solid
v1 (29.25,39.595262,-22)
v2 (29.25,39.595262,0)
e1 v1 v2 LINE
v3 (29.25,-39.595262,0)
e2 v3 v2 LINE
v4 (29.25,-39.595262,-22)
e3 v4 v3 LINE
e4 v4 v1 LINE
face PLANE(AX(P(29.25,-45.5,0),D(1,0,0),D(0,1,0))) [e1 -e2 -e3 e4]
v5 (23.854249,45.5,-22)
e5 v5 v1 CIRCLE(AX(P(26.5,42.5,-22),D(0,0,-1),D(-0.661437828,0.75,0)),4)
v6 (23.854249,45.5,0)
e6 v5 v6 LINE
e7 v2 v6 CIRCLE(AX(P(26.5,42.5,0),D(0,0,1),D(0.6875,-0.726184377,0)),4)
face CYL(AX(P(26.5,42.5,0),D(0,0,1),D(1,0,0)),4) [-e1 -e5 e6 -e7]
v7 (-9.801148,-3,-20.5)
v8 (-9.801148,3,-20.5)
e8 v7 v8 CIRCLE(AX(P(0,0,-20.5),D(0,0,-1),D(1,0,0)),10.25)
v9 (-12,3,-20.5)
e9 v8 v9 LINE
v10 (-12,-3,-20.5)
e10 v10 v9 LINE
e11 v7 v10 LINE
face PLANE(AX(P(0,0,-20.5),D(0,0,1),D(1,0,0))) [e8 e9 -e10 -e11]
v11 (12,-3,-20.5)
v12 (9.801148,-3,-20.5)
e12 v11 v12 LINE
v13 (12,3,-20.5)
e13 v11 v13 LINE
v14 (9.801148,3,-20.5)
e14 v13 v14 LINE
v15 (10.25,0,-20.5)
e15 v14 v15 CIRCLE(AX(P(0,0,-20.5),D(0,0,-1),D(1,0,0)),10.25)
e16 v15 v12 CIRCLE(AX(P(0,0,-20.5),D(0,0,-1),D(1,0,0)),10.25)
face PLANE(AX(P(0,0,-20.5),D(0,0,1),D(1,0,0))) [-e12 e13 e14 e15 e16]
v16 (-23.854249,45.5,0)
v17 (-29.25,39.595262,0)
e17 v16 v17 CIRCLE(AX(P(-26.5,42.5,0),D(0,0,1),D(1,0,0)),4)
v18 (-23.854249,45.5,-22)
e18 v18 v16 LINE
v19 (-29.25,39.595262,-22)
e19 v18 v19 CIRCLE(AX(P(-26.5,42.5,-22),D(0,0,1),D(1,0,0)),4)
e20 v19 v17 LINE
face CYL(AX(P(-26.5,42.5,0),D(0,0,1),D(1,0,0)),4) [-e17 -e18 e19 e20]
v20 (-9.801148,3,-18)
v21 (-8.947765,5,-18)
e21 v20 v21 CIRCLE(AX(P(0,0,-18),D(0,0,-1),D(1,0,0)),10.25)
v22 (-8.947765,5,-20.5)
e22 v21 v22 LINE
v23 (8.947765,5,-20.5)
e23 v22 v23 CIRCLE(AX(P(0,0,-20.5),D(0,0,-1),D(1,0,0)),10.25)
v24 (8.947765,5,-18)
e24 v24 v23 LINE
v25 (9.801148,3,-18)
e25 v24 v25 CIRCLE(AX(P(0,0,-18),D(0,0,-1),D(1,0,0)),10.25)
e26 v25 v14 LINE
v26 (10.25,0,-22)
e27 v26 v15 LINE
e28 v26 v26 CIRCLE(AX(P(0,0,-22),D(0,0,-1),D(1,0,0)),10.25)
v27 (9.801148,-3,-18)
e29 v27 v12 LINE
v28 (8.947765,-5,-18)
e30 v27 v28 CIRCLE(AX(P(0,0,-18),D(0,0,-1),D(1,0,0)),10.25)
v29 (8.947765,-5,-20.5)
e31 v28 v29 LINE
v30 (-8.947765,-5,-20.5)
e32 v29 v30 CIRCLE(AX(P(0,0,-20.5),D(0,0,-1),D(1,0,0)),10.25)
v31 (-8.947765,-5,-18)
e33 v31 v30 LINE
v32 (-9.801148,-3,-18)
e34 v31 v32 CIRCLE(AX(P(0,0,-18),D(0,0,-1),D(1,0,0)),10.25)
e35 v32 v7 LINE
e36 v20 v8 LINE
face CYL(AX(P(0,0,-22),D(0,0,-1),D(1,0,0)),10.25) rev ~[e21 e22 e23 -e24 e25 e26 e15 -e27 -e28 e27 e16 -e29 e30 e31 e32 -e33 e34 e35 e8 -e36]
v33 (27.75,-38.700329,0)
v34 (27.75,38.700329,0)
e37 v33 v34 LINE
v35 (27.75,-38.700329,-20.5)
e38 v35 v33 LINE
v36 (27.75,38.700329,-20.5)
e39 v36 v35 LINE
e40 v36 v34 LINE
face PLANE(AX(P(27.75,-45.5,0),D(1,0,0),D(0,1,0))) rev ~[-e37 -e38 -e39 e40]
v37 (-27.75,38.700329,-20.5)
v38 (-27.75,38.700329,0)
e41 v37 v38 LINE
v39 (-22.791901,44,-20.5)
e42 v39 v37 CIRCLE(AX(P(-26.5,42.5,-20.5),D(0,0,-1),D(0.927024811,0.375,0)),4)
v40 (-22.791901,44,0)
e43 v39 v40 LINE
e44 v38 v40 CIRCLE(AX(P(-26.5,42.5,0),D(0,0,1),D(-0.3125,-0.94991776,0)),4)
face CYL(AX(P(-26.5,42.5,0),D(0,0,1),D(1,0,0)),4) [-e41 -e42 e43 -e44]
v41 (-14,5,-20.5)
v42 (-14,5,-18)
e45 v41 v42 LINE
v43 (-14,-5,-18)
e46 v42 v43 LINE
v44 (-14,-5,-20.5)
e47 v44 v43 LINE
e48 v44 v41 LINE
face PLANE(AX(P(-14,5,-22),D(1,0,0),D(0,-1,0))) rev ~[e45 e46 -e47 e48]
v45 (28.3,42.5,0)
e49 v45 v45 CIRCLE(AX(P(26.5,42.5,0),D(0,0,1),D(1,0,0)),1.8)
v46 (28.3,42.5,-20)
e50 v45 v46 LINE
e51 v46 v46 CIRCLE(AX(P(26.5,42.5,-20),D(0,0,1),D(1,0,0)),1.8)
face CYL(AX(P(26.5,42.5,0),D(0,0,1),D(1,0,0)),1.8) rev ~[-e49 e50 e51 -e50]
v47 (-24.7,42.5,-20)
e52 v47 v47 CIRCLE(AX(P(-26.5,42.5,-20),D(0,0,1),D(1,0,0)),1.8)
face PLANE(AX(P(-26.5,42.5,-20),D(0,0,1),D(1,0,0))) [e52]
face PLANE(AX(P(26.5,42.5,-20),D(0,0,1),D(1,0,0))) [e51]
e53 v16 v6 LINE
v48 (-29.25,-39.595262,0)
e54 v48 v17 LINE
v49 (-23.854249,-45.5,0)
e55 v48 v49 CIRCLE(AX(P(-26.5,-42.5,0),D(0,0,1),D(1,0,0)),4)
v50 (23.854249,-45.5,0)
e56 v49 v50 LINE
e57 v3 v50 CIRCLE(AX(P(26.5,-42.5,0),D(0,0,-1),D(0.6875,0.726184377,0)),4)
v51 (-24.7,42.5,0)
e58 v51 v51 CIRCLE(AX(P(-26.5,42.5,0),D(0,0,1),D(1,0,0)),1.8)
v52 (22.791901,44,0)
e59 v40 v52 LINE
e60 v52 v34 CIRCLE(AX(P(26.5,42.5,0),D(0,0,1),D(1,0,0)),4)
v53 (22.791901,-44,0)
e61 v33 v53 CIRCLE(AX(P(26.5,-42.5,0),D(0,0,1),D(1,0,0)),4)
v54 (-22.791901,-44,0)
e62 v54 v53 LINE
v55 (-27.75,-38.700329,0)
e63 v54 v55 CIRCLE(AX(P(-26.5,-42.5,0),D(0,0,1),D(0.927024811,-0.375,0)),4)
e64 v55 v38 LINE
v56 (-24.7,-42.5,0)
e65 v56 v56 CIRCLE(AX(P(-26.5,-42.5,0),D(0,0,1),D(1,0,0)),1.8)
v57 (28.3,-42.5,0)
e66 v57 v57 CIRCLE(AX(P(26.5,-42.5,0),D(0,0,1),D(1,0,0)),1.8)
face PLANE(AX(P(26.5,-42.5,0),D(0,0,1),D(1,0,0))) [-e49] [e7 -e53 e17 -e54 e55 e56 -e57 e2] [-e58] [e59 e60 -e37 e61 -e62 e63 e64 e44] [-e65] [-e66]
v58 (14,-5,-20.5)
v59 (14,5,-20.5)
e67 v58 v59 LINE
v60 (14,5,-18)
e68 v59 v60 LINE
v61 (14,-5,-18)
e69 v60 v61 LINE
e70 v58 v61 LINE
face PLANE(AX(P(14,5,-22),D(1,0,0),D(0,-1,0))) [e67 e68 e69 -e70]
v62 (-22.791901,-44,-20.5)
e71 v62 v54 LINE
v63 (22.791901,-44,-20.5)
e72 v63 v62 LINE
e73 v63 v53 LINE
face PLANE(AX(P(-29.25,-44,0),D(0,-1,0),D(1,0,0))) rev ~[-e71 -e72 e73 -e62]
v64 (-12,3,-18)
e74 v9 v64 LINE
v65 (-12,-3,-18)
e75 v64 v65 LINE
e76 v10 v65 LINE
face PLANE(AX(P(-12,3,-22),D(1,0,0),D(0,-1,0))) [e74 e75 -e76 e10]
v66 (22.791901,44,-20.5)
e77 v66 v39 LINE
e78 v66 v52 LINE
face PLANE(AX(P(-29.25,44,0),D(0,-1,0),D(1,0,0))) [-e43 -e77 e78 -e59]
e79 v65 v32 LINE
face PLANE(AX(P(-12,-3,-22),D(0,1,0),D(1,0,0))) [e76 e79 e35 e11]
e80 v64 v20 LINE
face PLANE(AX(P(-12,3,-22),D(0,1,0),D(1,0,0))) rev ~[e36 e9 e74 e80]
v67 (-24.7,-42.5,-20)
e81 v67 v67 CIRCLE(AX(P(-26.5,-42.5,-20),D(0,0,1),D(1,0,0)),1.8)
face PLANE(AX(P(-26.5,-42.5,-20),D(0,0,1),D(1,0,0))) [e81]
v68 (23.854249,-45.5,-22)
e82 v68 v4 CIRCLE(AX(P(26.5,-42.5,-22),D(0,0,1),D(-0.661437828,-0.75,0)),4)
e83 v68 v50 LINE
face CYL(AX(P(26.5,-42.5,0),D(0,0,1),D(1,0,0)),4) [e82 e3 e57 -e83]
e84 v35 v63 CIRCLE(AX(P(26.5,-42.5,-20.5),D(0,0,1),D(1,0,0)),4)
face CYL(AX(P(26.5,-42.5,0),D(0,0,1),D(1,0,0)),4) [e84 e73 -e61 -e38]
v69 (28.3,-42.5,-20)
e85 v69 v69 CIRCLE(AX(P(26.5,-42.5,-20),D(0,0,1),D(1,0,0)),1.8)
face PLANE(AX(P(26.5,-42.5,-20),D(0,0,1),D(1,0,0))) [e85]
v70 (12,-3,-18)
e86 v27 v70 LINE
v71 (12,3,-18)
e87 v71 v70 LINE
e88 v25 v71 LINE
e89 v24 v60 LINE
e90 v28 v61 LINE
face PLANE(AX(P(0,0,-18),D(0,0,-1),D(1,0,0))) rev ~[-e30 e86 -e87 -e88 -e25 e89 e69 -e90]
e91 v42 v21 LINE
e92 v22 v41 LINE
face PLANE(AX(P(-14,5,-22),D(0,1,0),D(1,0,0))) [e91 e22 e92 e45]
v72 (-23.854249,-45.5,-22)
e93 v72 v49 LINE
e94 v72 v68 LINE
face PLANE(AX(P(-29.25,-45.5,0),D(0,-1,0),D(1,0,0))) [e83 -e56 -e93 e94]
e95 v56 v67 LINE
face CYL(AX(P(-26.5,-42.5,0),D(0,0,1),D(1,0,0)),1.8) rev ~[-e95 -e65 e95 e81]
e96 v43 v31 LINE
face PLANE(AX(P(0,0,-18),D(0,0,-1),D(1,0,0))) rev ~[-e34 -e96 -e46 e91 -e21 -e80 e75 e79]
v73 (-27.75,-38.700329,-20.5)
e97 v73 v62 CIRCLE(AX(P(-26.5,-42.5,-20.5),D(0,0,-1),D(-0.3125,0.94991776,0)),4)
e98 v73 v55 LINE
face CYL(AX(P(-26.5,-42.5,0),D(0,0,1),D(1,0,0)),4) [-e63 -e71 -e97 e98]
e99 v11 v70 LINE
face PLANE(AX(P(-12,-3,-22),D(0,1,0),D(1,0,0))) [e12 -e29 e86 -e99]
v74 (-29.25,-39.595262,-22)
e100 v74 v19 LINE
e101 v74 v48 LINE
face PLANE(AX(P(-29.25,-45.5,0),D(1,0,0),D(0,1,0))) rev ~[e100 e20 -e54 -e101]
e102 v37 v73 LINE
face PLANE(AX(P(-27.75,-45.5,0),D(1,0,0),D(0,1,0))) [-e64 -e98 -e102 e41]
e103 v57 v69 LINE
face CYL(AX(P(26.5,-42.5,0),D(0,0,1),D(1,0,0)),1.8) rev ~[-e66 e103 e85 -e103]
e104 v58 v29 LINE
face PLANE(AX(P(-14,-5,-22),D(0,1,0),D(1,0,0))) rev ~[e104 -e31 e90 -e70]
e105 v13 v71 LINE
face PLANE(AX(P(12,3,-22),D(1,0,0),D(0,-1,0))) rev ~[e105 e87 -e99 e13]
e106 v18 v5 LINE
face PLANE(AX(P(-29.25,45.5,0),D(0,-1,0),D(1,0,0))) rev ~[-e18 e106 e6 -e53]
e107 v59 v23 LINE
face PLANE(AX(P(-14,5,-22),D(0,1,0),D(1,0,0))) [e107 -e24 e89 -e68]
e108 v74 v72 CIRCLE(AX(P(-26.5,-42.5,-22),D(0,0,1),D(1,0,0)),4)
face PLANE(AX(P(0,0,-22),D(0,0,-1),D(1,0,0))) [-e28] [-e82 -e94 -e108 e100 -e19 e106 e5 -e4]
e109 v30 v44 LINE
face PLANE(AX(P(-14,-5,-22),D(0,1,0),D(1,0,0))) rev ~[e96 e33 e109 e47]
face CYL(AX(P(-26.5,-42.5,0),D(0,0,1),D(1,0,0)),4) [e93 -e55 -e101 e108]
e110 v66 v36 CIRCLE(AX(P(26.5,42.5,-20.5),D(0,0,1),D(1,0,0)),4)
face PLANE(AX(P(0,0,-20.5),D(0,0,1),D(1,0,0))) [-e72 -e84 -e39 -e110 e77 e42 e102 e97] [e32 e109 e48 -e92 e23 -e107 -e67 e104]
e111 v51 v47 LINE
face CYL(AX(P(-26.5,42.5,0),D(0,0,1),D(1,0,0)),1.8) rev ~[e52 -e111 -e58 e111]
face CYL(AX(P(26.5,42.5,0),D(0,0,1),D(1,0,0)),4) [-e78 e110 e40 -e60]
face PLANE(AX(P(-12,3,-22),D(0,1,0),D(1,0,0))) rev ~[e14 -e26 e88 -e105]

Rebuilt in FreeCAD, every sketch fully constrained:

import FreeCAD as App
import Part
import Sketcher

V = App.Vector
Q = App.Units.Quantity


def edges_at(feature, points):
    """Names of the edges that pass closest to the given points."""
    edges = feature.Shape.Edges
    near = lambda p: min(range(len(edges)), key=lambda i: edges[i].distToShape(Part.Vertex(*p))[0])
    return sorted({f"Edge{near(p) + 1}" for p in points})


def faces_at(feature, points):
    """Names of the faces that lie closest to the given points."""
    faces = feature.Shape.Faces
    near = lambda p: min(range(len(faces)), key=lambda i: faces[i].distToShape(Part.Vertex(*p))[0])
    return sorted({f"Face{near(p) + 1}" for p in points})

doc = App.newDocument("Part")
body = doc.addObject("PartDesign::Body", "Body")

# Sketch on XY plane
sketch1 = doc.addObject("Sketcher::SketchObject", "Sketch")
body.addObject(sketch1)
sketch1.AttachmentSupport = (doc.XY_Plane, [""])
sketch1.MapMode = "FlatFace"
sketch1.addGeometry([
    Part.LineSegment(V(-29.25, 45.5, 0), V(-29.25, -45.5, 0)),
    Part.LineSegment(V(-29.25, -45.5, 0), V(29.25, -45.5, 0)),
    Part.LineSegment(V(29.25, -45.5, 0), V(29.25, 45.5, 0)),
    Part.LineSegment(V(29.25, 45.5, 0), V(-29.25, 45.5, 0)),
], False)
sketch1.addConstraint([
    Sketcher.Constraint("Coincident", 0, 2, 1, 1),
    Sketcher.Constraint("Coincident", 1, 2, 2, 1),
    Sketcher.Constraint("Coincident", 2, 2, 3, 1),
    Sketcher.Constraint("Coincident", 3, 2, 0, 1),
    Sketcher.Constraint("Vertical", 0),
    Sketcher.Constraint("Horizontal", 1),
    Sketcher.Constraint("Vertical", 2),
    Sketcher.Constraint("Horizontal", 3),
    Sketcher.Constraint("Symmetric", 0, 2, 2, 2, -1, 1),
    Sketcher.Constraint("DistanceY", 0, 2, 0, 1, Q("91 mm")),
    Sketcher.Constraint("DistanceX", 1, 1, 1, 2, Q("58.5 mm")),
])
pad1 = doc.addObject("PartDesign::Pad", "Pad")
body.addObject(pad1)
pad1.Profile = sketch1
pad1.Length = 22
pad1.Reversed = True
doc.recompute()

thickness = doc.addObject("PartDesign::Thickness", "Thickness")
body.addObject(thickness)
thickness.Base = (pad1, faces_at(pad1, [(0, 0, 0)]))
thickness.Value = 1.5
thickness.Reversed = True
thickness.Join = "Arc"
doc.recompute()

fillet = doc.addObject("PartDesign::Fillet", "Fillet")
body.addObject(fillet)
fillet.Base = (thickness, edges_at(thickness, [
    (-29.25, 45.5, -11),
    (29.25, 45.5, -11),
    (-29.25, -45.5, -11),
    (29.25, -45.5, -11),
]))
fillet.Radius = 3
doc.recompute()

fillet2 = doc.addObject("PartDesign::Fillet", "Fillet001")
body.addObject(fillet2)
fillet2.Base = (fillet, edges_at(fillet, [
    (-27.75, 44, -10.25),
    (-27.75, -44, -10.25),
    (27.75, -44, -10.25),
    (27.75, 44, -10.25),
]))
fillet2.Radius = 2

# Sketch on XY plane
sketch2 = doc.addObject("Sketcher::SketchObject", "Sketch001")
body.addObject(sketch2)
sketch2.AttachmentSupport = (doc.XY_Plane, [""])
sketch2.MapMode = "FlatFace"
sketch2.addGeometry([
    Part.Circle(V(26.5, -42.5, 0), V(0, 0, 1), 4),
    Part.Circle(V(26.5, 42.5, 0), V(0, 0, 1), 4),
    Part.Circle(V(-26.5, 42.5, 0), V(0, 0, 1), 4),
    Part.Circle(V(-26.5, -42.5, 0), V(0, 0, 1), 4),
], False)
sketch2.addConstraint([
    Sketcher.Constraint("Equal", 0, 1),
    Sketcher.Constraint("Equal", 1, 2),
    Sketcher.Constraint("Equal", 2, 3),
    Sketcher.Constraint("Symmetric", 0, 3, 2, 3, -1, 1),
    Sketcher.Constraint("Symmetric", 1, 3, 3, 3, -1, 1),
    Sketcher.Constraint("Symmetric", 1, 3, 2, 3, -2),
    Sketcher.Constraint("Diameter", 0, Q("8 mm")),
    Sketcher.Constraint("DistanceY", 0, 3, 1, 3, Q("85 mm")),
    Sketcher.Constraint("DistanceX", 2, 3, 1, 3, Q("53 mm")),
])
pad2 = doc.addObject("PartDesign::Pad", "Pad001")
body.addObject(pad2)
pad2.Profile = sketch2
pad2.Length = 22
pad2.Reversed = True

# Sketch on XY plane
sketch3 = doc.addObject("Sketcher::SketchObject", "Sketch002")
body.addObject(sketch3)
sketch3.AttachmentSupport = (doc.XY_Plane, [""])
sketch3.MapMode = "FlatFace"
sketch3.addGeometry([
    Part.Circle(V(26.5, -42.5, 0), V(0, 0, 1), 1.8),
    Part.Circle(V(26.5, 42.5, 0), V(0, 0, 1), 1.8),
    Part.Circle(V(-26.5, -42.5, 0), V(0, 0, 1), 1.8),
    Part.Circle(V(-26.5, 42.5, 0), V(0, 0, 1), 1.8),
], False)
sketch3.addConstraint([
    Sketcher.Constraint("Equal", 0, 1),
    Sketcher.Constraint("Equal", 1, 2),
    Sketcher.Constraint("Equal", 2, 3),
    Sketcher.Constraint("Symmetric", 1, 3, 2, 3, -1, 1),
    Sketcher.Constraint("Symmetric", 0, 3, 3, 3, -1, 1),
    Sketcher.Constraint("Symmetric", 0, 3, 2, 3, -2),
    Sketcher.Constraint("Diameter", 0, Q("3.6 mm")),
    Sketcher.Constraint("DistanceY", 0, 3, 1, 3, Q("85 mm")),
    Sketcher.Constraint("DistanceX", 2, 3, 0, 3, Q("53 mm")),
])
pocket1 = doc.addObject("PartDesign::Pocket", "Pocket")
body.addObject(pocket1)
pocket1.Profile = sketch3
pocket1.Length = 20

# Sketch on XY plane
sketch4 = doc.addObject("Sketcher::SketchObject", "Sketch003")
body.addObject(sketch4)
sketch4.AttachmentSupport = (doc.XY_Plane, [""])
sketch4.MapMode = "FlatFace"
sketch4.AttachmentOffset = App.Placement(V(0, 0, -22), App.Rotation())
sketch4.addGeometry([
    Part.LineSegment(V(-14, -5, 0), V(-14, 5, 0)),  # 0
    Part.LineSegment(V(-14, 5, 0), V(14, 5, 0)),  # 1
    Part.LineSegment(V(14, 5, 0), V(14, -5, 0)),  # 2
    Part.LineSegment(V(14, -5, 0), V(-14, -5, 0)),  # 3
    Part.LineSegment(V(12, 3, 0), V(-12, 3, 0)),  # 4
    Part.LineSegment(V(-12, 3, 0), V(-12, -3, 0)),  # 5
    Part.LineSegment(V(-12, -3, 0), V(12, -3, 0)),  # 6
    Part.LineSegment(V(12, -3, 0), V(12, 3, 0)),  # 7
], False)
sketch4.addConstraint([
    Sketcher.Constraint("Coincident", 0, 2, 1, 1),
    Sketcher.Constraint("Coincident", 1, 2, 2, 1),
    Sketcher.Constraint("Coincident", 2, 2, 3, 1),
    Sketcher.Constraint("Coincident", 3, 2, 0, 1),
    Sketcher.Constraint("Coincident", 4, 2, 5, 1),
    Sketcher.Constraint("Coincident", 5, 2, 6, 1),
    Sketcher.Constraint("Coincident", 6, 2, 7, 1),
    Sketcher.Constraint("Coincident", 7, 2, 4, 1),
    Sketcher.Constraint("Vertical", 0),
    Sketcher.Constraint("Horizontal", 1),
    Sketcher.Constraint("Vertical", 2),
    Sketcher.Constraint("Horizontal", 3),
    Sketcher.Constraint("Horizontal", 4),
    Sketcher.Constraint("Vertical", 5),
    Sketcher.Constraint("Horizontal", 6),
    Sketcher.Constraint("Vertical", 7),
    Sketcher.Constraint("Symmetric", 0, 2, 2, 2, -1, 1),
    Sketcher.Constraint("Symmetric", 4, 2, 6, 2, -1, 1),
    Sketcher.Constraint("DistanceX", 1, 1, 1, 2, Q("28 mm")),
    Sketcher.Constraint("DistanceX", 4, 2, 4, 1, Q("24 mm")),
    Sketcher.Constraint("DistanceY", 0, 1, 0, 2, Q("10 mm")),
    Sketcher.Constraint("DistanceY", 5, 2, 5, 1, Q("6 mm")),
])
pad3 = doc.addObject("PartDesign::Pad", "Pad002")
body.addObject(pad3)
pad3.Profile = sketch4
pad3.Length = 4

# Sketch on XY plane
sketch5 = doc.addObject("Sketcher::SketchObject", "Sketch004")
body.addObject(sketch5)
sketch5.AttachmentSupport = (doc.XY_Plane, [""])
sketch5.MapMode = "FlatFace"
sketch5.AttachmentOffset = App.Placement(V(0, 0, -22), App.Rotation())
sketch5.addGeometry(Part.Circle(V(0, 0, 0), V(0, 0, 1), 10.25), False)
sketch5.addConstraint([
    Sketcher.Constraint("Coincident", 0, 3, -1, 1),
    Sketcher.Constraint("Diameter", 0, Q("20.5 mm")),
])
pocket2 = doc.addObject("PartDesign::Pocket", "Pocket001")
body.addObject(pocket2)
pocket2.Profile = sketch5
pocket2.Length = 25
pocket2.Reversed = True

doc.recompute()
